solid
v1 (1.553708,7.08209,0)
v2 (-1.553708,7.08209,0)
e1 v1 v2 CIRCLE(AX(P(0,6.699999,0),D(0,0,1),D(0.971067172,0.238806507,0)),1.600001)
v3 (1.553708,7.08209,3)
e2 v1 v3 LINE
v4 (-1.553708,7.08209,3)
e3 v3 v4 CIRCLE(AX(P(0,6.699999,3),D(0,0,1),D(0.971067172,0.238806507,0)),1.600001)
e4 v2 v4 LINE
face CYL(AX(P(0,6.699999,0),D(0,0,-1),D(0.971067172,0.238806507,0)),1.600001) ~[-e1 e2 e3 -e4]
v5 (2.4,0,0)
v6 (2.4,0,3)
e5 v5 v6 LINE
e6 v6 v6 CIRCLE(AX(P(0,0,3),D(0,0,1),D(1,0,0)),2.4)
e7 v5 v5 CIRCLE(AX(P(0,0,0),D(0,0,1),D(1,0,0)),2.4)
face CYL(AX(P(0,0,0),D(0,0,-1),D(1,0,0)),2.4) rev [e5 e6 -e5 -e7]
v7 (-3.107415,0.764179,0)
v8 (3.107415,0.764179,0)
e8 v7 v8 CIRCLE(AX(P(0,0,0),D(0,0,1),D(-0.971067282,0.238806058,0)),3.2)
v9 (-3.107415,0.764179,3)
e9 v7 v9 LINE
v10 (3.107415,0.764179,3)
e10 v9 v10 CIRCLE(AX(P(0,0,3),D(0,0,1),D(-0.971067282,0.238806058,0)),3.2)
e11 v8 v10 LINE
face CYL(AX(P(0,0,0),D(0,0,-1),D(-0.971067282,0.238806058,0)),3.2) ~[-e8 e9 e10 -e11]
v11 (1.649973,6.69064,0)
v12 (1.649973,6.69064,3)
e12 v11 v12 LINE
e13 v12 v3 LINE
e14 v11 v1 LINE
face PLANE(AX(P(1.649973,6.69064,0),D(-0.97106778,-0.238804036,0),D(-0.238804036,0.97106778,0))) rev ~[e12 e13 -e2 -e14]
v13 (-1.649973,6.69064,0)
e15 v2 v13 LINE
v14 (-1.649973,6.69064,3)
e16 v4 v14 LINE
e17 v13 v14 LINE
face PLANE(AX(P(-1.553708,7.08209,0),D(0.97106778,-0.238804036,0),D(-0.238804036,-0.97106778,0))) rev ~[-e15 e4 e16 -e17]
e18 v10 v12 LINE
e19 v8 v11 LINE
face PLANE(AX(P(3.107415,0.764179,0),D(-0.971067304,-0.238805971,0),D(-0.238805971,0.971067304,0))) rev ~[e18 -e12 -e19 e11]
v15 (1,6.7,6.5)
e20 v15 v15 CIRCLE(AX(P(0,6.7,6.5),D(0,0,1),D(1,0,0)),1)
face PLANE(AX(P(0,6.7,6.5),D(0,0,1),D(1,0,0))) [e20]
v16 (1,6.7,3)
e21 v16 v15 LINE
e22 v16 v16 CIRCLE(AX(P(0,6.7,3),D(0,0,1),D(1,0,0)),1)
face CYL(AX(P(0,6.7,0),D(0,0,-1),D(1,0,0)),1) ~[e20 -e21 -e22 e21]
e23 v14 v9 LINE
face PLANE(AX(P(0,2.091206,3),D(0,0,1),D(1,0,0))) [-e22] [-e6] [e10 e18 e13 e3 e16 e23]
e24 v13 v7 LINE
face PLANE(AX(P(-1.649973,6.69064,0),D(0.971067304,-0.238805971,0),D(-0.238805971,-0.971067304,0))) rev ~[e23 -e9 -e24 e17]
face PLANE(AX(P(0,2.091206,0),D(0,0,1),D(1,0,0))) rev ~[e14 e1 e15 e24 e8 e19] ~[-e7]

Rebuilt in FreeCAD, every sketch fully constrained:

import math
import FreeCAD as App
import Part
import Sketcher
from FreeCAD import Vector

doc = App.newDocument("Part")
body = doc.addObject("PartDesign::Body", "Body")

sketch1 = doc.addObject("Sketcher::SketchObject", "Sketch")
body.addObject(sketch1)
sketch1.AttachmentSupport = (doc.XY_Plane, [""])
sketch1.MapMode = "FlatFace"
sketch1.addGeometry([
    Part.LineSegment(Vector(3.107415, 0.764179, 0), Vector(1.649973, 6.69064, 0)),
    Part.LineSegment(Vector(1.649973, 6.69064, 0), Vector(1.553708, 7.08209, 0)),
    Part.ArcOfCircle(Part.Circle(Vector(0, 6.699999, 0), Vector(0, 0, 1), 1.600001), math.radians(13.81611), math.radians(166.18389)),
    Part.LineSegment(Vector(-1.553708, 7.08209, 0), Vector(-1.649973, 6.69064, 0)),
    Part.LineSegment(Vector(-1.649973, 6.69064, 0), Vector(-3.107415, 0.764179, 0)),
    Part.ArcOfCircle(Part.Circle(Vector(0, 0, 0), Vector(0, 0, 1), 3.2), math.radians(166.183916), math.radians(373.816084)),
    Part.Circle(Vector(0, 0, 0), Vector(0, 0, 1), 2.4),
    Part.Circle(Vector(0, 6.7, 0), Vector(0, 0, 1), 1),
], False)
sketch1.addConstraint([
    Sketcher.Constraint("Coincident", 0, 2, 1, 1),
    Sketcher.Constraint("Coincident", 1, 2, 2, 1),
    Sketcher.Constraint("Coincident", 2, 2, 3, 1),
    Sketcher.Constraint("Coincident", 3, 2, 4, 1),
    Sketcher.Constraint("Tangent", 4, 2, 5, 1),
    Sketcher.Constraint("Tangent", 5, 2, 0, 1),
    Sketcher.Constraint("Coincident", 5, 3, -1, 1),
    Sketcher.Constraint("Coincident", 6, 3, -1, 1),
    Sketcher.Constraint("Coincident", 7, 3, 2, 3),
    Sketcher.Constraint("Symmetric", 1, 2, 2, 2, -2),
    Sketcher.Constraint("Symmetric", 0, 2, 3, 2, -2),
    Sketcher.Constraint("Parallel", 0, 1),
    Sketcher.Constraint("Diameter", 7, 2.0),
    Sketcher.Constraint("Diameter", 6, 4.8),
    Sketcher.Constraint("Radius", 2, 1.600001),
    Sketcher.Constraint("Radius", 5, 3.2),
    Sketcher.Constraint("DistanceY", -1, 1, 2, 3, 6.699999),
    Sketcher.Constraint("Distance", 0, 6.103038),
    Sketcher.Constraint("DistanceX", -1, 1, 1, 2, 1.553708),
])
pad1 = doc.addObject("PartDesign::Pad", "Pad")
body.addObject(pad1)
pad1.Profile = sketch1
pad1.Length = 3

sketch2 = doc.addObject("Sketcher::SketchObject", "Sketch001")
body.addObject(sketch2)
sketch2.AttachmentSupport = (doc.XY_Plane, [""])
sketch2.MapMode = "FlatFace"
sketch2.addGeometry(Part.Circle(Vector(0, 6.7, 0), Vector(0, 0, 1), 1), False)
sketch2.addConstraint([
    Sketcher.Constraint("PointOnObject", 0, 3, -2),
    Sketcher.Constraint("Diameter", 0, 2.0),
    Sketcher.Constraint("DistanceY", -1, 1, 0, 3, 6.7),
])
pad2 = doc.addObject("PartDesign::Pad", "Pad001")
body.addObject(pad2)
pad2.Profile = sketch2
pad2.Length = 6.5

doc.recompute()
